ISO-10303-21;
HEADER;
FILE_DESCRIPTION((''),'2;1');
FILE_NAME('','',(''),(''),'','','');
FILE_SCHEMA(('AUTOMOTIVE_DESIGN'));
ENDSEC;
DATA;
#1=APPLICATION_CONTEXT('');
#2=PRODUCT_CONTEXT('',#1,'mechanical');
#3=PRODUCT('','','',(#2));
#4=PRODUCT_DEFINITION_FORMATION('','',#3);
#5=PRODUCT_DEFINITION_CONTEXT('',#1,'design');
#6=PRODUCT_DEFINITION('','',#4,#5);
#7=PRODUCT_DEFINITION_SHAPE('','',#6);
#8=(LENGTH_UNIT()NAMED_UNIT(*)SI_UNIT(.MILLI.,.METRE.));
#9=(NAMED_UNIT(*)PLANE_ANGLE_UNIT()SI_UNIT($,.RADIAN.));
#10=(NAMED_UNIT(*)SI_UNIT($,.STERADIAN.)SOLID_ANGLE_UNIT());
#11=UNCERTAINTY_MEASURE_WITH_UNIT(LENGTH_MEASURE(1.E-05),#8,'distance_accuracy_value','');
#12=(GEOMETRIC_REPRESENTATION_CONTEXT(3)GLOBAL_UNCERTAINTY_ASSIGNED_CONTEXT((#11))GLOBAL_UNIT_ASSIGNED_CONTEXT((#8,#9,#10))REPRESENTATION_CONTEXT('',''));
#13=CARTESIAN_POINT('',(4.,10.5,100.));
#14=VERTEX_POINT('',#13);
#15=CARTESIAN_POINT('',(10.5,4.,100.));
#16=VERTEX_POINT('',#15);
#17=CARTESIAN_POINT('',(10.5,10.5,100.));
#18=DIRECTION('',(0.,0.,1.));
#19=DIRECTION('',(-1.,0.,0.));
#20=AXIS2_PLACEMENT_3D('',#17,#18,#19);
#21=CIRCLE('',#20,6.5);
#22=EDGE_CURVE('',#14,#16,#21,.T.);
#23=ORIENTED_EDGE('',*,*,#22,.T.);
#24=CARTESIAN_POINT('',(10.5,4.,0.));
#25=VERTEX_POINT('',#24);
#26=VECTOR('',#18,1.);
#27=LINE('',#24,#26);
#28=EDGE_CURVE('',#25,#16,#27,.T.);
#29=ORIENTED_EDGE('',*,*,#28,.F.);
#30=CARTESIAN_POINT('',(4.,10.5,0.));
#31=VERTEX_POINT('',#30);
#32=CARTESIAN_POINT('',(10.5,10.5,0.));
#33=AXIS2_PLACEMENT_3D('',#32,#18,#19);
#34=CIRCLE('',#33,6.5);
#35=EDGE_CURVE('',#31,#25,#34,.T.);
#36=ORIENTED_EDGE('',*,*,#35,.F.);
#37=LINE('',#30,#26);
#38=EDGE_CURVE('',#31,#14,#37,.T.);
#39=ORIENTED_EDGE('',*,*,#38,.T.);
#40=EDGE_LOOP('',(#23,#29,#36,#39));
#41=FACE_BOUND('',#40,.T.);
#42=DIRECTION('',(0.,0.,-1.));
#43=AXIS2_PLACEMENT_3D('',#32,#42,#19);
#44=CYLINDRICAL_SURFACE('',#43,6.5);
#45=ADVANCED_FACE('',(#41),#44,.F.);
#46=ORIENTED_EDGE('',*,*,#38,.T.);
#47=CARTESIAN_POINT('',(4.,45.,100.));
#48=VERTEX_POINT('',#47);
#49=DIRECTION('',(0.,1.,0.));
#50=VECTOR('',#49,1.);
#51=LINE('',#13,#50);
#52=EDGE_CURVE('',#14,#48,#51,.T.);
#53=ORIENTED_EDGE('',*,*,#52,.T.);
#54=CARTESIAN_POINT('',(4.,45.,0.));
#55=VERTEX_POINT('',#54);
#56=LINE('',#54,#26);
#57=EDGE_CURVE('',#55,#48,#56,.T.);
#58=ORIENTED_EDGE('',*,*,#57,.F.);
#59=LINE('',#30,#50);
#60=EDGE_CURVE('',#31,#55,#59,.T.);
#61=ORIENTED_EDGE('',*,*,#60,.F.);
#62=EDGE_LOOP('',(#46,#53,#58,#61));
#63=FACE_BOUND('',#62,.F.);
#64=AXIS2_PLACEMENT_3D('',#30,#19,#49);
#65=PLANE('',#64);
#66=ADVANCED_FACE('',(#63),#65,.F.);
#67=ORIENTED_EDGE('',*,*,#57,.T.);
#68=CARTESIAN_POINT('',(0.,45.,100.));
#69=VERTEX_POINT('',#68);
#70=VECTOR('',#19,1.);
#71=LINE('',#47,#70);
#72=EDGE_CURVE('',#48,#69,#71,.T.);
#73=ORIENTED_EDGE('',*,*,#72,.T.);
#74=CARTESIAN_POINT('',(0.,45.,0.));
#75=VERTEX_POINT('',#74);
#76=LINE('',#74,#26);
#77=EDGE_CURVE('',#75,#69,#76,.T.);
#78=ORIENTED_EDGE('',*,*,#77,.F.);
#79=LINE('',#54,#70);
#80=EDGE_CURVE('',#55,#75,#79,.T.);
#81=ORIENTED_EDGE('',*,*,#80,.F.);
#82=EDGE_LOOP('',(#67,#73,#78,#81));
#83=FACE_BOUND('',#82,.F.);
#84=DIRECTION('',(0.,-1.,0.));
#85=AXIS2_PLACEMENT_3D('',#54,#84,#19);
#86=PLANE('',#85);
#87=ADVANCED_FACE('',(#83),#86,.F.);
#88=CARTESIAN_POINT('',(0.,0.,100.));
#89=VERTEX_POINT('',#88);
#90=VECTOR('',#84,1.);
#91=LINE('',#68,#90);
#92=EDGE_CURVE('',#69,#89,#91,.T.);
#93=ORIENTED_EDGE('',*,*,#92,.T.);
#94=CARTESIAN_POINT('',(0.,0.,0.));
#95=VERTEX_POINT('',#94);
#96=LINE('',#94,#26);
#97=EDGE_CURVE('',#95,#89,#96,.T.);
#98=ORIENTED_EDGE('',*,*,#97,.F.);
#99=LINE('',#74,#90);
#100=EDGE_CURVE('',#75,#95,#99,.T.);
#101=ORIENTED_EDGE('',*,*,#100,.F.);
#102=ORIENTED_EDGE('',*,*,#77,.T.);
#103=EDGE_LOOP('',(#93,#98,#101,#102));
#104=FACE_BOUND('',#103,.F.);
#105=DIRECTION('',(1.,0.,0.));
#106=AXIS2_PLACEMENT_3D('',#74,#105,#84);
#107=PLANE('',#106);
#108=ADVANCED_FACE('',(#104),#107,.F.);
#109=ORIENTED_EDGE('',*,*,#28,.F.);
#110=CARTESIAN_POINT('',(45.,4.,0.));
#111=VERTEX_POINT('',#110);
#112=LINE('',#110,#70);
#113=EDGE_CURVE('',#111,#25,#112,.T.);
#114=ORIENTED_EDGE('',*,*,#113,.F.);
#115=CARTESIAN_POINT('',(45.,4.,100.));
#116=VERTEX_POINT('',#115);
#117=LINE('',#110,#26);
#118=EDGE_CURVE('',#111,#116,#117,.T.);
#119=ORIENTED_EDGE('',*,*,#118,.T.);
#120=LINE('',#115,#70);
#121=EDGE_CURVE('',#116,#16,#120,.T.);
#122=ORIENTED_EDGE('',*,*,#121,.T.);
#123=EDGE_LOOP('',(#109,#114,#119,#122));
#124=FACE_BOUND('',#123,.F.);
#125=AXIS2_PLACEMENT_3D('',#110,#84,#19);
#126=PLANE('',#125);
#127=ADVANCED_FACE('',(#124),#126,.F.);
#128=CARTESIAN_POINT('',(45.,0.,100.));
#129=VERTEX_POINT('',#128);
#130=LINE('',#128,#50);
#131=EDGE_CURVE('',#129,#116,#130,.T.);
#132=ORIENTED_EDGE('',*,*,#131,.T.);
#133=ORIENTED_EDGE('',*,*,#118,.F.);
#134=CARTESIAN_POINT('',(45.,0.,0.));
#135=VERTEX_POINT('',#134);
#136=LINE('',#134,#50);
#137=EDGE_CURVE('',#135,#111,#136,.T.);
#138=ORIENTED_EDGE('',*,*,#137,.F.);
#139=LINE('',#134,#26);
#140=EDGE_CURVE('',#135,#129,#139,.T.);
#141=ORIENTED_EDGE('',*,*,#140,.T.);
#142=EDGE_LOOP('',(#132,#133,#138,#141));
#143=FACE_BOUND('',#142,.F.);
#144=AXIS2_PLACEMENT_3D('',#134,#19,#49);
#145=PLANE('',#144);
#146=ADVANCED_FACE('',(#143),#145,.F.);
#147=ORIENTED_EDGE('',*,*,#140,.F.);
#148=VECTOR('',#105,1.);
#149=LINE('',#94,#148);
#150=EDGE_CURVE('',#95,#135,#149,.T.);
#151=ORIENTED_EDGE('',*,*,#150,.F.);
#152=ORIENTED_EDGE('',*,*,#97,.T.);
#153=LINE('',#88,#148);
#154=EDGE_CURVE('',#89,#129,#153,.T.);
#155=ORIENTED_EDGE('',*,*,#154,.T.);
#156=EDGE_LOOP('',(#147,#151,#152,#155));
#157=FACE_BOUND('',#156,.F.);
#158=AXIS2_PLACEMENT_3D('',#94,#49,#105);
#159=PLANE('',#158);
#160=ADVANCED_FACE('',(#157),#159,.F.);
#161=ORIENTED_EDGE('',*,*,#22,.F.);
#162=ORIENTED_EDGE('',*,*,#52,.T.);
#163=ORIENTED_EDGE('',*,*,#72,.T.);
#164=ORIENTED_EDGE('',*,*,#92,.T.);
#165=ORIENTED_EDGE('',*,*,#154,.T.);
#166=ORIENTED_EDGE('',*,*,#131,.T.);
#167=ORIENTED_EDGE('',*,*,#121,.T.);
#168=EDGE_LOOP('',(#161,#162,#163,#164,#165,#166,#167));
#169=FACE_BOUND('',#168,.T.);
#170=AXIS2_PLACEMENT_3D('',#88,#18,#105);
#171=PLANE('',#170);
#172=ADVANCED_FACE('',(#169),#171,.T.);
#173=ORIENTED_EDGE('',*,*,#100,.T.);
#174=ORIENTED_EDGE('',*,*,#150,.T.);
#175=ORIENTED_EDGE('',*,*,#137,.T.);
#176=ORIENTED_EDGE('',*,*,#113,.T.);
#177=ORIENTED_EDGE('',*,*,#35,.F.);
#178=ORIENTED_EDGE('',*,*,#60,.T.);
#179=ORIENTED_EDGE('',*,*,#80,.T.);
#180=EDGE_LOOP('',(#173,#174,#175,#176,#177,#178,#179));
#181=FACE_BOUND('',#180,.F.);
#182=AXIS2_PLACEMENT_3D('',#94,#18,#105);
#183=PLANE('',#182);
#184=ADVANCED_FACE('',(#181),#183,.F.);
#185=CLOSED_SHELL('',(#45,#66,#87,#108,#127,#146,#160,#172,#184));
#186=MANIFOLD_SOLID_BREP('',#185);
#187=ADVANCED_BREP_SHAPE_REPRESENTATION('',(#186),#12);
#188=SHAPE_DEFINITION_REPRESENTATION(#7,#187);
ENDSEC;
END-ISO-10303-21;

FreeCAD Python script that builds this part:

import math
import FreeCAD as App
import Part
import Sketcher
Q = App.Units.Quantity

doc = App.newDocument("Part")
body = doc.addObject("PartDesign::Body", "Body")

sketch1 = doc.addObject("Sketcher::SketchObject", "Sketch")
body.addObject(sketch1)
sketch1.AttachmentSupport = (doc.XY_Plane, [""])
sketch1.MapMode = "FlatFace"
sketch1.addGeometry(Part.LineSegment(App.Vector(4, 45, 0), App.Vector(0, 45, 0)), False)
sketch1.addGeometry(Part.LineSegment(App.Vector(0, 45, 0), App.Vector(0, 0, 0)), False)
sketch1.addGeometry(Part.LineSegment(App.Vector(0, 0, 0), App.Vector(45, 0, 0)), False)
sketch1.addGeometry(Part.LineSegment(App.Vector(45, 0, 0), App.Vector(45, 4, 0)), False)
sketch1.addGeometry(Part.LineSegment(App.Vector(45, 4, 0), App.Vector(10.5, 4, 0)), False)
sketch1.addGeometry(Part.ArcOfCircle(Part.Circle(App.Vector(10.5, 10.5, 0), App.Vector(0, 0, 1), 6.5), math.radians(180), math.radians(270)), False)
sketch1.addGeometry(Part.LineSegment(App.Vector(4, 10.5, 0), App.Vector(4, 45, 0)), False)
sketch1.addConstraint(Sketcher.Constraint("Coincident", 0, 2, 1, 1))
sketch1.addConstraint(Sketcher.Constraint("Coincident", 1, 2, 2, 1))
sketch1.addConstraint(Sketcher.Constraint("Coincident", 2, 2, 3, 1))
sketch1.addConstraint(Sketcher.Constraint("Coincident", 3, 2, 4, 1))
sketch1.addConstraint(Sketcher.Constraint("Tangent", 4, 2, 5, 2))
sketch1.addConstraint(Sketcher.Constraint("Tangent", 5, 1, 6, 1))
sketch1.addConstraint(Sketcher.Constraint("Coincident", 6, 2, 0, 1))
sketch1.addConstraint(Sketcher.Constraint("Horizontal", 0))
sketch1.addConstraint(Sketcher.Constraint("Vertical", 1))
sketch1.addConstraint(Sketcher.Constraint("Horizontal", 2))
sketch1.addConstraint(Sketcher.Constraint("Vertical", 3))
sketch1.addConstraint(Sketcher.Constraint("Horizontal", 4))
sketch1.addConstraint(Sketcher.Constraint("Vertical", 6))
sketch1.addConstraint(Sketcher.Constraint("Coincident", 1, 2, -1, 1))
sketch1.addConstraint(Sketcher.Constraint("Equal", 2, 1))
sketch1.addConstraint(Sketcher.Constraint("Equal", 0, 3))
sketch1.addConstraint(Sketcher.Constraint("Radius", 5, Q("6.5 mm")))
sketch1.addConstraint(Sketcher.Constraint("DistanceX", 0, 2, 0, 1, Q("4 mm")))
sketch1.addConstraint(Sketcher.Constraint("DistanceX", 2, 1, 2, 2, Q("45 mm")))
pad1 = doc.addObject("PartDesign::Pad", "Pad")
body.addObject(pad1)
pad1.Profile = sketch1
pad1.Length = 100

doc.recompute()
